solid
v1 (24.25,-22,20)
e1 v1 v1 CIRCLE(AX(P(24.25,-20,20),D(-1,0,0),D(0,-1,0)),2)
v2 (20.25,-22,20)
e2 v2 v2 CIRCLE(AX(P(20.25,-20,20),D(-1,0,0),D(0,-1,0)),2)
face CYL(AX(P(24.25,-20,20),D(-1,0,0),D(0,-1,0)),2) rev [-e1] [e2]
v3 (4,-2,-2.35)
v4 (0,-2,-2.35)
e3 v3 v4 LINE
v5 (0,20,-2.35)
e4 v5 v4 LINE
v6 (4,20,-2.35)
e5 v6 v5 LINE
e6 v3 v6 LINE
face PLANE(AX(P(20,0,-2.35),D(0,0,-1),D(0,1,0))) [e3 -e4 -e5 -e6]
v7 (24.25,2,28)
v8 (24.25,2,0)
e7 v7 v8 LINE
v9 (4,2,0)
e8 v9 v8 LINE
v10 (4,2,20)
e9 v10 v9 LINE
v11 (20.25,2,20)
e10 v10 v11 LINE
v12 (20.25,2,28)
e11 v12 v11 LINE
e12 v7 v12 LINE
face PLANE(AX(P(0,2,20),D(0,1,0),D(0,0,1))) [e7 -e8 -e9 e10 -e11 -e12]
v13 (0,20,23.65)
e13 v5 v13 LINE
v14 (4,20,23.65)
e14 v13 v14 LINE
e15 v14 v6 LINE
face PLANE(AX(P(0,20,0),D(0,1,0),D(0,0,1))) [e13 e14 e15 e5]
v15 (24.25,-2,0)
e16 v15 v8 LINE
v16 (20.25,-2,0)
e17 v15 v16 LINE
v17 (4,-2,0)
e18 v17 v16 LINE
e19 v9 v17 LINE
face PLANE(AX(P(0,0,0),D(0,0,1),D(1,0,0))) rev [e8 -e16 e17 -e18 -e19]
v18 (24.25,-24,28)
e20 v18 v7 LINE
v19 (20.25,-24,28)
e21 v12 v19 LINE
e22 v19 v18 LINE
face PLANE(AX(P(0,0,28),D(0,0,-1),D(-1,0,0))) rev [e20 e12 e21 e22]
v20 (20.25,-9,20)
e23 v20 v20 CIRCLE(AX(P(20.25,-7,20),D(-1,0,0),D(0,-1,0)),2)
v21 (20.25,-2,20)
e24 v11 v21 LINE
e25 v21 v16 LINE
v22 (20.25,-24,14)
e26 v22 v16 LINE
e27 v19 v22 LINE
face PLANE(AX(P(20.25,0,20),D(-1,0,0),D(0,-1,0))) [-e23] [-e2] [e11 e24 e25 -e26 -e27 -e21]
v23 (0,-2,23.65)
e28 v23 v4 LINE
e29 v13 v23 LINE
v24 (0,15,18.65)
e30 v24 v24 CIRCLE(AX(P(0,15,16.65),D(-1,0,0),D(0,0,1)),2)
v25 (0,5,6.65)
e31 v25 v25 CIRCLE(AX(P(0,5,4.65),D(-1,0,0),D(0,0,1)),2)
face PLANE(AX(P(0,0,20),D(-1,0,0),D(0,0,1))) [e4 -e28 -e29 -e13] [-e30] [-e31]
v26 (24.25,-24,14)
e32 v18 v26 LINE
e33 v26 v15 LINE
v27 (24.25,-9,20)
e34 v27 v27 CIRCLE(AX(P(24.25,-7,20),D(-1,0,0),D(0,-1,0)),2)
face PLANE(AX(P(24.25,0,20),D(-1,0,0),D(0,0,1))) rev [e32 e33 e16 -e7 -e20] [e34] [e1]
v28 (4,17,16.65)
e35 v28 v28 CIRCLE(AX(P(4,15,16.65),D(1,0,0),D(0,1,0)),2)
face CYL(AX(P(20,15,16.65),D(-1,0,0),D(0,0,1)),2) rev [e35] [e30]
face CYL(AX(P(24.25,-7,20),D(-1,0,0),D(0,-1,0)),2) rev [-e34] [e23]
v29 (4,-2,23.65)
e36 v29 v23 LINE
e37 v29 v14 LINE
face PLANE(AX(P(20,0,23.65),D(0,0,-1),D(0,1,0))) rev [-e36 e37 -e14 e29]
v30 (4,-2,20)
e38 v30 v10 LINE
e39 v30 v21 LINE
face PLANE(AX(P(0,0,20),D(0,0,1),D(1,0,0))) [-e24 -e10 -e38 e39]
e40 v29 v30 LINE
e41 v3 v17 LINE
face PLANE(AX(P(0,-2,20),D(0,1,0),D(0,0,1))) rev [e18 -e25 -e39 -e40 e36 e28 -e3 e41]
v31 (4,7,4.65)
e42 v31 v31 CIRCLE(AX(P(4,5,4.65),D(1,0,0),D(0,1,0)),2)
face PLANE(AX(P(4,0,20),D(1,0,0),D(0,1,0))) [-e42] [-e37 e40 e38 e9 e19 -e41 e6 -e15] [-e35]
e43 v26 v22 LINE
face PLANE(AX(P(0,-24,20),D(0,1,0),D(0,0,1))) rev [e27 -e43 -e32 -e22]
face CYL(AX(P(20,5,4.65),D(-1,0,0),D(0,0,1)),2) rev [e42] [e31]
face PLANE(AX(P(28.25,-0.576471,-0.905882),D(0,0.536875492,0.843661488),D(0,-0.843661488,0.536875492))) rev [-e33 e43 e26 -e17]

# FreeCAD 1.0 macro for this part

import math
import FreeCAD as App
import Part
import Sketcher

V = App.Vector


def add_polygon(sketch, points):
    """Adds a closed chain of lines whose ends are joined by coincident constraints."""
    first, n = sketch.GeometryCount, len(points)
    for a, b in zip(points, points[1:] + points[:1]):
        sketch.addGeometry(Part.LineSegment(App.Vector(*a, 0), App.Vector(*b, 0)), False)
    for i in range(n):
        sketch.addConstraint(Sketcher.Constraint("Coincident", first + i, 2, first + (i + 1) % n, 1))

doc = App.newDocument("Part")
body = doc.addObject("PartDesign::Body", "Body")

sketch1 = body.newObject("Sketcher::SketchObject", "Sketch")
sketch1.AttachmentSupport = (doc.getObject("XY_Plane"), [""])
sketch1.MapMode = "FlatFace"
add_polygon(sketch1, [(0, 16), (0, -2), (20.25, -2), (20.25, -24), (24.25, -24), (24.25, 2), (4, 2), (4, 16)])
sketch1.addConstraint([
    Sketcher.Constraint("Vertical", 0),
    Sketcher.Constraint("Horizontal", 1),
    Sketcher.Constraint("Vertical", 2),
    Sketcher.Constraint("Horizontal", 3),
    Sketcher.Constraint("Vertical", 4),
    Sketcher.Constraint("Horizontal", 5),
    Sketcher.Constraint("Vertical", 6),
    Sketcher.Constraint("Horizontal", 7),
    Sketcher.Constraint("PointOnObject", 0, 2, -2),
    Sketcher.Constraint("Equal", 1, 5),
    Sketcher.Constraint("DistanceX", 3, 1, 3, 2, 4.0),
    Sketcher.Constraint("DistanceY", 0, 2, 0, 1, 18.0),
    Sketcher.Constraint("DistanceY", 2, 2, 2, 1, 22.0),
    Sketcher.Constraint("DistanceY", 4, 1, 4, 2, 26.0),
    Sketcher.Constraint("DistanceY", 0, 2, -1, 1, 2.0),
    Sketcher.Constraint("DistanceX", 1, 1, 1, 2, 20.25),
])
pad1 = body.newObject("PartDesign::Pad", "Pad")
pad1.Profile = sketch1
pad1.Length = 20

sketch2 = body.newObject("Sketcher::SketchObject", "Sketch001")
sketch2.AttachmentSupport = (doc.getObject("XY_Plane"), [""])
sketch2.MapMode = "FlatFace"
add_polygon(sketch2, [(4, 16), (4, -2), (0, -2), (0, 16)])
sketch2.addConstraint([
    Sketcher.Constraint("Vertical", 0),
    Sketcher.Constraint("Horizontal", 1),
    Sketcher.Constraint("Vertical", 2),
    Sketcher.Constraint("Horizontal", 3),
    Sketcher.Constraint("PointOnObject", 1, 2, -2),
    Sketcher.Constraint("DistanceX", 1, 2, 1, 1, 4.0),
    Sketcher.Constraint("DistanceY", 0, 2, 0, 1, 18.0),
    Sketcher.Constraint("DistanceY", 0, 2, -1, 1, 2.0),
])
pad2 = body.newObject("PartDesign::Pad", "Pad001")
pad2.Profile = sketch2
pad2.Length = 20
pad2.Reversed = True

sketch3 = body.newObject("Sketcher::SketchObject", "Sketch002")
sketch3.AttachmentSupport = (doc.getObject("XY_Plane"), [""])
sketch3.MapMode = "FlatFace"
sketch3.AttachmentOffset = App.Placement(V(0, 0, 20), App.Rotation())
add_polygon(sketch3, [(0, 16), (0, -2), (4, -2), (4, 16)])
sketch3.addConstraint([
    Sketcher.Constraint("Vertical", 0),
    Sketcher.Constraint("Horizontal", 1),
    Sketcher.Constraint("Vertical", 2),
    Sketcher.Constraint("Horizontal", 3),
    Sketcher.Constraint("PointOnObject", 0, 2, -2),
    Sketcher.Constraint("DistanceX", 1, 1, 1, 2, 4.0),
    Sketcher.Constraint("DistanceY", 0, 2, 0, 1, 18.0),
    Sketcher.Constraint("DistanceY", 0, 2, -1, 1, 2.0),
])
pad3 = body.newObject("PartDesign::Pad", "Pad002")
pad3.Profile = sketch3
pad3.Length = 20

sketch4 = body.newObject("Sketcher::SketchObject", "Sketch003")
sketch4.AttachmentSupport = (doc.getObject("YZ_Plane"), [""])
sketch4.MapMode = "FlatFace"
add_polygon(sketch4, [(16, -20), (-2, -20), (-2, -2.35), (16, -2.35)])
add_polygon(sketch4, [(16, 23.65), (-2, 23.65), (-2, 40), (16, 40)])
sketch4.addGeometry(Part.Circle(V(15, 16.65, 0), V(0, 0, 1), 2), False)
sketch4.addGeometry(Part.Circle(V(5, 4.65, 0), V(0, 0, 1), 2), False)
sketch4.addConstraint([
    Sketcher.Constraint("Horizontal", 0),
    Sketcher.Constraint("Vertical", 1),
    Sketcher.Constraint("Horizontal", 2),
    Sketcher.Constraint("Vertical", 3),
    Sketcher.Constraint("Horizontal", 4),
    Sketcher.Constraint("Vertical", 5),
    Sketcher.Constraint("Horizontal", 6),
    Sketcher.Constraint("Vertical", 7),
    Sketcher.Constraint("Equal", 8, 9),
    Sketcher.Constraint("Vertical", 1, 2, 4, 2),
    Sketcher.Constraint("Vertical", 3, 2, 6, 2),
    Sketcher.Constraint("Diameter", 8, 4.0),
    Sketcher.Constraint("DistanceX", 0, 2, 0, 1, 18.0),
    Sketcher.Constraint("DistanceX", -1, 1, 8, 3, 15.0),
    Sketcher.Constraint("DistanceX", -1, 1, 9, 3, 5.0),
    Sketcher.Constraint("DistanceX", 0, 2, -1, 1, 2.0),
    Sketcher.Constraint("DistanceY", 0, 2, -1, 1, 20.0),
    Sketcher.Constraint("DistanceY", -1, 1, 5, 2, 40.0),
    Sketcher.Constraint("DistanceY", 9, 3, 8, 3, 12.0),
    Sketcher.Constraint("DistanceY", 1, 2, 9, 3, 7.0),
    Sketcher.Constraint("DistanceY", 8, 3, 4, 2, 7.0),
    Sketcher.Constraint("DistanceY", 1, 1, 1, 2, 17.65),
])
pocket1 = body.newObject("PartDesign::Pocket", "Pocket")
pocket1.Profile = sketch4
pocket1.Length = 20
pocket1.Reversed = True

sketch5 = body.newObject("Sketcher::SketchObject", "Sketch004")
sketch5.AttachmentSupport = (doc.getObject("XZ_Plane"), [""])
sketch5.MapMode = "FlatFace"
sketch5.AttachmentOffset = App.Placement(V(0, 0, -16), App.Rotation())
add_polygon(sketch5, [(0, -2.35), (0, 23.65), (4, 23.65), (4, -2.35)])
sketch5.addConstraint([
    Sketcher.Constraint("Vertical", 0),
    Sketcher.Constraint("Horizontal", 1),
    Sketcher.Constraint("Vertical", 2),
    Sketcher.Constraint("Horizontal", 3),
    Sketcher.Constraint("PointOnObject", 0, 2, -2),
    Sketcher.Constraint("DistanceX", 1, 1, 1, 2, 4.0),
    Sketcher.Constraint("DistanceY", 0, 1, 0, 2, 26.0),
    Sketcher.Constraint("DistanceY", -1, 1, 0, 2, 23.65),
])
pad4 = body.newObject("PartDesign::Pad", "Pad003")
pad4.Profile = sketch5
pad4.Length = 4
pad4.Reversed = True

sketch6 = body.newObject("Sketcher::SketchObject", "Sketch005")
sketch6.AttachmentSupport = (doc.getObject("YZ_Plane"), [""])
sketch6.MapMode = "FlatFace"
sketch6.addGeometry(Part.Circle(V(15, 16.65, 0), V(0, 0, 1), 2), False)
sketch6.addConstraint([
    Sketcher.Constraint("Diameter", 0, 4.0),
    Sketcher.Constraint("DistanceX", -1, 1, 0, 3, 15.0),
    Sketcher.Constraint("DistanceY", -1, 1, 0, 3, 16.65),
])
pocket2 = body.newObject("PartDesign::Pocket", "Pocket001")
pocket2.Profile = sketch6
pocket2.Length = 4
pocket2.Reversed = True

sketch7 = body.newObject("Sketcher::SketchObject", "Sketch006")
sketch7.AttachmentSupport = (doc.getObject("YZ_Plane"), [""])
sketch7.MapMode = "FlatFace"
sketch7.AttachmentOffset = App.Placement(V(0, 0, 20.25), App.Rotation())
sketch7.addGeometry([
    Part.Circle(V(-7, 20, 0), V(0, 0, 1), 2),
    Part.Circle(V(-20, 20, 0), V(0, 0, 1), 2),
], False)
sketch7.addConstraint([
    Sketcher.Constraint("Equal", 0, 1),
    Sketcher.Constraint("Horizontal", 0, 3, 1, 3),
    Sketcher.Constraint("Diameter", 0, 4.0),
    Sketcher.Constraint("DistanceX", 0, 3, -1, 1, 7.0),
    Sketcher.Constraint("DistanceY", -1, 1, 0, 3, 20.0),
    Sketcher.Constraint("DistanceX", 1, 3, -1, 1, 20.0),
])
pocket3 = body.newObject("PartDesign::Pocket", "Pocket002")
pocket3.Profile = sketch7
pocket3.Length = 4
pocket3.Reversed = True

sketch8 = body.newObject("Sketcher::SketchObject", "Sketch007")
sketch8.AttachmentSupport = (doc.getObject("XY_Plane"), [""])
sketch8.MapMode = "FlatFace"
sketch8.AttachmentOffset = App.Placement(V(0, 0, 20), App.Rotation())
add_polygon(sketch8, [(20.25, 2), (20.25, -24), (24.25, -24), (24.25, 2)])
sketch8.addConstraint([
    Sketcher.Constraint("Vertical", 0),
    Sketcher.Constraint("Horizontal", 1),
    Sketcher.Constraint("Vertical", 2),
    Sketcher.Constraint("Horizontal", 3),
    Sketcher.Constraint("DistanceX", 1, 1, 1, 2, 4.0),
    Sketcher.Constraint("DistanceY", 0, 2, 0, 1, 26.0),
    Sketcher.Constraint("DistanceY", 0, 2, -1, 1, 24.0),
    Sketcher.Constraint("DistanceX", -1, 1, 0, 2, 20.25),
])
pad5 = body.newObject("PartDesign::Pad", "Pad004")
pad5.Profile = sketch8
pad5.Length = 8

sketch9 = body.newObject("Sketcher::SketchObject", "Sketch008")
sketch9.AttachmentSupport = (doc.getObject("YZ_Plane"), [""])
sketch9.MapMode = "FlatFace"
sketch9.AttachmentOffset = App.Placement(V(0, 0, 20.25), App.Rotation())
sketch9.addGeometry(Part.ArcOfCircle(Part.Circle(V(-7, 20, 0), V(0, 0, 1), 2), math.radians(90), math.radians(180)), False)
sketch9.addGeometry(Part.ArcOfCircle(Part.Circle(V(-7, 20, 0), V(0, 0, 1), 2), math.radians(0), math.radians(90)), False)
sketch9.addGeometry(Part.ArcOfCircle(Part.Circle(V(-7, 20, 0), V(0, 0, 1), 2), math.radians(180), math.radians(360)), False)
sketch9.addGeometry(Part.ArcOfCircle(Part.Circle(V(-20, 20, 0), V(0, 0, 1), 2), math.radians(90), math.radians(180)), False)
sketch9.addGeometry(Part.ArcOfCircle(Part.Circle(V(-20, 20, 0), V(0, 0, 1), 2), math.radians(0), math.radians(90)), False)
sketch9.addGeometry(Part.ArcOfCircle(Part.Circle(V(-20, 20, 0), V(0, 0, 1), 2), math.radians(180), math.radians(360)), False)
add_polygon(sketch9, [(-24, 14), (-2, 0), (-24, 0)])
sketch9.addConstraint([
    Sketcher.Constraint("Tangent", 0, 1, 1, 2),
    Sketcher.Constraint("Tangent", 1, 1, 2, 2),
    Sketcher.Constraint("Tangent", 2, 1, 0, 2),
    Sketcher.Constraint("Tangent", 3, 1, 4, 2),
    Sketcher.Constraint("Tangent", 4, 1, 5, 2),
    Sketcher.Constraint("Tangent", 5, 1, 3, 2),
    Sketcher.Constraint("Horizontal", 7),
    Sketcher.Constraint("Vertical", 8),
    Sketcher.Constraint("Equal", 2, 3),
    Sketcher.Constraint("PointOnObject", 6, 2, -1),
    Sketcher.Constraint("Horizontal", 2, 3, 3, 3),
    Sketcher.Constraint("Horizontal", 5, 3, 1, 1),
    Sketcher.Constraint("Horizontal", 1, 1, 2, 1),
    Sketcher.Constraint("Horizontal", 2, 1, 4, 1),
    Sketcher.Constraint("Horizontal", 4, 1, 5, 1),
    Sketcher.Constraint("Vertical", 2, 3, 0, 1),
    Sketcher.Constraint("Vertical", 5, 3, 3, 1),
    Sketcher.Constraint("Radius", 0, 2.0),
    Sketcher.Constraint("DistanceX", 7, 2, 7, 1, 22.0),
    Sketcher.Constraint("DistanceY", 8, 1, 8, 2, 14.0),
    Sketcher.Constraint("DistanceX", 0, 3, -1, 1, 7.0),
    Sketcher.Constraint("DistanceY", -1, 1, 0, 3, 20.0),
    Sketcher.Constraint("DistanceX", 3, 3, -1, 1, 20.0),
    Sketcher.Constraint("DistanceX", 6, 2, -1, 1, 2.0),
])
pocket4 = body.newObject("PartDesign::Pocket", "Pocket003")
pocket4.Profile = sketch9
pocket4.Length = 8
pocket4.Reversed = True

doc.recompute()
